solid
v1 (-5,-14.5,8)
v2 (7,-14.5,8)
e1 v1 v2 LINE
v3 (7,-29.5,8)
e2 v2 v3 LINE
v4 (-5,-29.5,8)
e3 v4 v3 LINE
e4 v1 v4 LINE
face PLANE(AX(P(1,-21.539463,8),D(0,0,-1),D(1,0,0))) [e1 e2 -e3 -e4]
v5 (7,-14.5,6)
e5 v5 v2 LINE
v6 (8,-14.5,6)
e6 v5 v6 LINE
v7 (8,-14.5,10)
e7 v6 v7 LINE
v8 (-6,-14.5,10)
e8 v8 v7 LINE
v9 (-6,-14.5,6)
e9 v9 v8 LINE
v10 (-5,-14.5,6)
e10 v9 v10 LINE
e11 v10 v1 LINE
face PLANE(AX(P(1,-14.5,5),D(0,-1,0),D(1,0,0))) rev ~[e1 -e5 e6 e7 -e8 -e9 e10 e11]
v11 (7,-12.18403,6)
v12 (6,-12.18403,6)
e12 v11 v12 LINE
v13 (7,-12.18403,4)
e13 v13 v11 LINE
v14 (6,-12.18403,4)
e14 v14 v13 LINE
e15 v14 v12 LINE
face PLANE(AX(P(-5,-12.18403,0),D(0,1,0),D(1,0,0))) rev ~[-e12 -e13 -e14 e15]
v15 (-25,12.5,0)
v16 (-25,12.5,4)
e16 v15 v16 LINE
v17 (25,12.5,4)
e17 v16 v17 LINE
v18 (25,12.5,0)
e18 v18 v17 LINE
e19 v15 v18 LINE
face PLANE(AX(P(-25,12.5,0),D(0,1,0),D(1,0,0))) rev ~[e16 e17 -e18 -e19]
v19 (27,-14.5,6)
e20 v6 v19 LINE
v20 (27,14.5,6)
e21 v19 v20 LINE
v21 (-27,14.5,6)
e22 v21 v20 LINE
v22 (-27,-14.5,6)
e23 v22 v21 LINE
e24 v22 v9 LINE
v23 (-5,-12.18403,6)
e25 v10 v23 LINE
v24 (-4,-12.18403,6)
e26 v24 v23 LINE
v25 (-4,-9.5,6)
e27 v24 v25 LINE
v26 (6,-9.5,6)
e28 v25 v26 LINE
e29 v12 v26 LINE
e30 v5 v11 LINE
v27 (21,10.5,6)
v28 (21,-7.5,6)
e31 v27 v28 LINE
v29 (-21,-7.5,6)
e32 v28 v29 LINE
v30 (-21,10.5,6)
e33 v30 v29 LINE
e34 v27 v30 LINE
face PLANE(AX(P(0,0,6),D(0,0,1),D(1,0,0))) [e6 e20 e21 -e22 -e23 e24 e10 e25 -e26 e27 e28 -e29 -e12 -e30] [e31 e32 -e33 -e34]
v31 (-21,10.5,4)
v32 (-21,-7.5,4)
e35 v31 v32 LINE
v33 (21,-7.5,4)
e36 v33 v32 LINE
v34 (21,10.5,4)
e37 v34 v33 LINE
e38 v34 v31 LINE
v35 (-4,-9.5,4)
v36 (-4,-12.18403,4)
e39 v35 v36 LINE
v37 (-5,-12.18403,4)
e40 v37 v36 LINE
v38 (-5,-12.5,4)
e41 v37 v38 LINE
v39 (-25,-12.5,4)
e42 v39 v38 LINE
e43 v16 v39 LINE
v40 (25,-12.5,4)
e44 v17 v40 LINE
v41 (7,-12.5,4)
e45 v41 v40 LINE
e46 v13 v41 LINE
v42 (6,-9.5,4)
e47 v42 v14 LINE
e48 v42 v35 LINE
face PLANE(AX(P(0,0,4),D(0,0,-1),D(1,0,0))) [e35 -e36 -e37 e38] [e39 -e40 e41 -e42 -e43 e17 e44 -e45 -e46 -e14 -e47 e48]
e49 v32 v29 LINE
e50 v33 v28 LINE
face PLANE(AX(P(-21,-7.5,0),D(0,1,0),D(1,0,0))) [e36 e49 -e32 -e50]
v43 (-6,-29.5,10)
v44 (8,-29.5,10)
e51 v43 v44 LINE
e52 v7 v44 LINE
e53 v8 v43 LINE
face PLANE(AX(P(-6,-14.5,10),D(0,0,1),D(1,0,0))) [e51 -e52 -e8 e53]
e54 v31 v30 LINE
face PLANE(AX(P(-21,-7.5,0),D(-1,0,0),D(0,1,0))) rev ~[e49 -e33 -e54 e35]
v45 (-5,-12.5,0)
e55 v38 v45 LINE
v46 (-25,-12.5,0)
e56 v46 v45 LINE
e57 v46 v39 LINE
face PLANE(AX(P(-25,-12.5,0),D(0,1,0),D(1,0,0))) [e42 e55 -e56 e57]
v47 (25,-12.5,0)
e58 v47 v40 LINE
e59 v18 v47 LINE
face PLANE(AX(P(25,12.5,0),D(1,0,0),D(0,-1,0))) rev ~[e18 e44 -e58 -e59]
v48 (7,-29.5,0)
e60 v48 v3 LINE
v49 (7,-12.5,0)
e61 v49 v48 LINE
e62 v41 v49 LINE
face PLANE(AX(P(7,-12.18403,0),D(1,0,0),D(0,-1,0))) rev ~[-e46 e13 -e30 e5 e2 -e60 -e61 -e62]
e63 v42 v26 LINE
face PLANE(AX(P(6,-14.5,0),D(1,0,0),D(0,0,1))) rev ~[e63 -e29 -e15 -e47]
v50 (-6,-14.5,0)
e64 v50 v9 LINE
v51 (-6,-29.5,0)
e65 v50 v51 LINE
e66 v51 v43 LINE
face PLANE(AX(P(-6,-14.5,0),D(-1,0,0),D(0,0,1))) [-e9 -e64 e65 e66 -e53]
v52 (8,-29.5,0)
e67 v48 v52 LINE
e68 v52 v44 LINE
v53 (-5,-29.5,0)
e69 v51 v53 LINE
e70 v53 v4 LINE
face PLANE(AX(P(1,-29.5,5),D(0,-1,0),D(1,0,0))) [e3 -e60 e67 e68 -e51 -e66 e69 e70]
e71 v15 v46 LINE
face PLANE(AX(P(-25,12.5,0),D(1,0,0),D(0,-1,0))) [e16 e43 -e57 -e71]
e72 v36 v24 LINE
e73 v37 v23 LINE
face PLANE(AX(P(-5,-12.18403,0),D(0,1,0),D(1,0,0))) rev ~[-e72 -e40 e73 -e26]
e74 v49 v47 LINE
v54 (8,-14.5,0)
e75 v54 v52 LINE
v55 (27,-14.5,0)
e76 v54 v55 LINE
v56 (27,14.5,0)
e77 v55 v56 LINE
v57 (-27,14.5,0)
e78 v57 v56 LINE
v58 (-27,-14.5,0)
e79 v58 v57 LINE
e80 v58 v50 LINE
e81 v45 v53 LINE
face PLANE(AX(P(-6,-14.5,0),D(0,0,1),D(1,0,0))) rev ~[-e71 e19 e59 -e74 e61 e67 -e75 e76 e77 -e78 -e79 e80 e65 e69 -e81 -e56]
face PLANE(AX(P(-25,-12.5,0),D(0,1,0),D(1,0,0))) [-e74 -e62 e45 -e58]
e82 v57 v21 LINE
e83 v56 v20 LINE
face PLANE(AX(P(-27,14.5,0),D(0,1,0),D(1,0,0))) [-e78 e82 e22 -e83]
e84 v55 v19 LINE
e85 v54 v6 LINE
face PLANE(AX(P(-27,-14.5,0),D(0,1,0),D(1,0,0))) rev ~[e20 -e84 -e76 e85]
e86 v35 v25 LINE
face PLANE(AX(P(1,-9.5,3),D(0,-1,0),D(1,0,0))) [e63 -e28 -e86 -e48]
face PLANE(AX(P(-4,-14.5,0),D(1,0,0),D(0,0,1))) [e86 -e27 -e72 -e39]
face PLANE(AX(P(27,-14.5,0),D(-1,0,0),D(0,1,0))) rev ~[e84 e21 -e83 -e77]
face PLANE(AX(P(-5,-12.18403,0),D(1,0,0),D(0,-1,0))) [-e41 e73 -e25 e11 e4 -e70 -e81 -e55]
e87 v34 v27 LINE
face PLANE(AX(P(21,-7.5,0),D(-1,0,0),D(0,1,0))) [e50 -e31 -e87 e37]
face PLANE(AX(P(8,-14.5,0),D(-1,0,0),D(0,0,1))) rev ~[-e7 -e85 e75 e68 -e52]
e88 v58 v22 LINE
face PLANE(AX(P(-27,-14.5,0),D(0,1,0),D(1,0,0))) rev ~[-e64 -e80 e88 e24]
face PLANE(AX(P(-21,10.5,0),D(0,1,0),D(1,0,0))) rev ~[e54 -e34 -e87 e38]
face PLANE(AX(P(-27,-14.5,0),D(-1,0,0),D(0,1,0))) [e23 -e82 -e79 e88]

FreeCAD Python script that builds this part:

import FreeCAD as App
import Part
import Sketcher
Q = App.Units.Quantity


def add_polygon(sketch, points):
    """Adds a closed chain of lines whose ends are joined by coincident constraints."""
    first, n = sketch.GeometryCount, len(points)
    for a, b in zip(points, points[1:] + points[:1]):
        sketch.addGeometry(Part.LineSegment(App.Vector(*a, 0), App.Vector(*b, 0)), False)
    for i in range(n):
        sketch.addConstraint(Sketcher.Constraint("Coincident", first + i, 2, first + (i + 1) % n, 1))

doc = App.newDocument("Part")
body = doc.addObject("PartDesign::Body", "Body")

# Sketch on XY plane
sketch1 = body.newObject("Sketcher::SketchObject", "Sketch")
sketch1.AttachmentSupport = (doc.getObject("XY_Plane"), [""])
sketch1.MapMode = "FlatFace"
add_polygon(sketch1, [(-27, 14.5), (-27, -14.5), (27, -14.5), (27, 14.5)])  # lines 0-3
sketch1.addConstraint(Sketcher.Constraint("Vertical", 0))
sketch1.addConstraint(Sketcher.Constraint("Horizontal", 1))
sketch1.addConstraint(Sketcher.Constraint("Vertical", 2))
sketch1.addConstraint(Sketcher.Constraint("Horizontal", 3))
sketch1.addConstraint(Sketcher.Constraint("Symmetric", 0, 2, 2, 2, -1, 1))
sketch1.addConstraint(Sketcher.Constraint("DistanceX", 1, 1, 1, 2, Q("54 mm")))
sketch1.addConstraint(Sketcher.Constraint("DistanceY", 0, 2, 0, 1, Q("29 mm")))
pad1 = body.newObject("PartDesign::Pad", "Pad")
pad1.Profile = sketch1
pad1.Length = 6

# Sketch on XY plane
sketch2 = body.newObject("Sketcher::SketchObject", "Sketch001")
sketch2.AttachmentSupport = (doc.getObject("XY_Plane"), [""])
sketch2.MapMode = "FlatFace"
add_polygon(sketch2, [(-21, 10.5), (-21, -7.5), (21, -7.5), (21, 10.5)])  # lines 0-3
sketch2.addConstraint(Sketcher.Constraint("Vertical", 0))
sketch2.addConstraint(Sketcher.Constraint("Horizontal", 1))
sketch2.addConstraint(Sketcher.Constraint("Vertical", 2))
sketch2.addConstraint(Sketcher.Constraint("Horizontal", 3))
sketch2.addConstraint(Sketcher.Constraint("DistanceX", 1, 1, 1, 2, Q("42 mm")))
sketch2.addConstraint(Sketcher.Constraint("DistanceY", 0, 2, 0, 1, Q("18 mm")))
sketch2.addConstraint(Sketcher.Constraint("DistanceX", 0, 2, -1, 1, Q("21 mm")))
sketch2.addConstraint(Sketcher.Constraint("DistanceY", 0, 2, -1, 1, Q("7.5 mm")))
pocket1 = body.newObject("PartDesign::Pocket", "Pocket")
pocket1.Profile = sketch2
pocket1.Length = 25.4
pocket1.Reversed = True

# Sketch on XY plane
sketch3 = body.newObject("Sketcher::SketchObject", "Sketch002")
sketch3.AttachmentSupport = (doc.getObject("XY_Plane"), [""])
sketch3.MapMode = "FlatFace"
add_polygon(sketch3, [(-25, -12.5), (-25, 12.5), (25, 12.5), (25, -12.5)])  # lines 0-3
sketch3.addConstraint(Sketcher.Constraint("Vertical", 0))
sketch3.addConstraint(Sketcher.Constraint("Horizontal", 1))
sketch3.addConstraint(Sketcher.Constraint("Vertical", 2))
sketch3.addConstraint(Sketcher.Constraint("Horizontal", 3))
sketch3.addConstraint(Sketcher.Constraint("Symmetric", 0, 2, 2, 2, -1, 1))
sketch3.addConstraint(Sketcher.Constraint("DistanceX", 1, 1, 1, 2, Q("50 mm")))
sketch3.addConstraint(Sketcher.Constraint("DistanceY", 0, 1, 0, 2, Q("25 mm")))
pocket2 = body.newObject("PartDesign::Pocket", "Pocket001")
pocket2.Profile = sketch3
pocket2.Length = 4
pocket2.Reversed = True

# Sketch on XZ plane
sketch4 = body.newObject("Sketcher::SketchObject", "Sketch003")
sketch4.AttachmentSupport = (doc.getObject("XZ_Plane"), [""])
sketch4.MapMode = "FlatFace"
sketch4.AttachmentOffset = App.Placement(App.Vector(0, 0, 14.5), App.Rotation())
add_polygon(sketch4, [(-4, 6), (-4, 0), (6, 0), (6, 6)])  # lines 0-3
sketch4.addConstraint(Sketcher.Constraint("Vertical", 0))
sketch4.addConstraint(Sketcher.Constraint("Horizontal", 1))
sketch4.addConstraint(Sketcher.Constraint("Vertical", 2))
sketch4.addConstraint(Sketcher.Constraint("Horizontal", 3))
sketch4.addConstraint(Sketcher.Constraint("PointOnObject", 0, 2, -1))
sketch4.addConstraint(Sketcher.Constraint("DistanceX", 1, 1, 1, 2, Q("10 mm")))
sketch4.addConstraint(Sketcher.Constraint("DistanceY", 0, 2, 0, 1, Q("6 mm")))
sketch4.addConstraint(Sketcher.Constraint("DistanceX", 0, 2, -1, 1, Q("4 mm")))
pocket3 = body.newObject("PartDesign::Pocket", "Pocket002")
pocket3.Profile = sketch4
pocket3.Length = 5

# Sketch on XZ plane
sketch5 = body.newObject("Sketcher::SketchObject", "Sketch004")
sketch5.AttachmentSupport = (doc.getObject("XZ_Plane"), [""])
sketch5.MapMode = "FlatFace"
sketch5.AttachmentOffset = App.Placement(App.Vector(0, 0, 14.5), App.Rotation())
add_polygon(sketch5, [(-6, 10), (-6, 0), (8, 0), (8, 10)])  # lines 0-3
sketch5.addConstraint(Sketcher.Constraint("Vertical", 0))
sketch5.addConstraint(Sketcher.Constraint("Horizontal", 1))
sketch5.addConstraint(Sketcher.Constraint("Vertical", 2))
sketch5.addConstraint(Sketcher.Constraint("Horizontal", 3))
sketch5.addConstraint(Sketcher.Constraint("PointOnObject", 0, 2, -1))
sketch5.addConstraint(Sketcher.Constraint("DistanceX", 1, 1, 1, 2, Q("14 mm")))
sketch5.addConstraint(Sketcher.Constraint("DistanceY", 0, 2, 0, 1, Q("10 mm")))
sketch5.addConstraint(Sketcher.Constraint("DistanceX", 0, 2, -1, 1, Q("6 mm")))
pad2 = body.newObject("PartDesign::Pad", "Pad001")
pad2.Profile = sketch5
pad2.Length = 15

# Sketch on XY plane
sketch6 = body.newObject("Sketcher::SketchObject", "Sketch005")
sketch6.AttachmentSupport = (doc.getObject("XY_Plane"), [""])
sketch6.MapMode = "FlatFace"
add_polygon(sketch6, [(-5, -30.894896), (-5, -12.18403), (7, -12.18403), (7, -30.894896)])  # lines 0-3
sketch6.addConstraint(Sketcher.Constraint("Vertical", 0))
sketch6.addConstraint(Sketcher.Constraint("Horizontal", 1))
sketch6.addConstraint(Sketcher.Constraint("Vertical", 2))
sketch6.addConstraint(Sketcher.Constraint("Horizontal", 3))
sketch6.addConstraint(Sketcher.Constraint("DistanceX", 1, 1, 1, 2, Q("12 mm")))
sketch6.addConstraint(Sketcher.Constraint("DistanceX", 0, 2, -1, 1, Q("5 mm")))
sketch6.addConstraint(Sketcher.Constraint("DistanceY", 0, 1, 0, 2, Q("18.710866 mm")))
sketch6.addConstraint(Sketcher.Constraint("DistanceY", 0, 2, -1, 1, Q("12.18403 mm")))
pocket4 = body.newObject("PartDesign::Pocket", "Pocket003")
pocket4.Profile = sketch6
pocket4.Length = 8
pocket4.Reversed = True

doc.recompute()
